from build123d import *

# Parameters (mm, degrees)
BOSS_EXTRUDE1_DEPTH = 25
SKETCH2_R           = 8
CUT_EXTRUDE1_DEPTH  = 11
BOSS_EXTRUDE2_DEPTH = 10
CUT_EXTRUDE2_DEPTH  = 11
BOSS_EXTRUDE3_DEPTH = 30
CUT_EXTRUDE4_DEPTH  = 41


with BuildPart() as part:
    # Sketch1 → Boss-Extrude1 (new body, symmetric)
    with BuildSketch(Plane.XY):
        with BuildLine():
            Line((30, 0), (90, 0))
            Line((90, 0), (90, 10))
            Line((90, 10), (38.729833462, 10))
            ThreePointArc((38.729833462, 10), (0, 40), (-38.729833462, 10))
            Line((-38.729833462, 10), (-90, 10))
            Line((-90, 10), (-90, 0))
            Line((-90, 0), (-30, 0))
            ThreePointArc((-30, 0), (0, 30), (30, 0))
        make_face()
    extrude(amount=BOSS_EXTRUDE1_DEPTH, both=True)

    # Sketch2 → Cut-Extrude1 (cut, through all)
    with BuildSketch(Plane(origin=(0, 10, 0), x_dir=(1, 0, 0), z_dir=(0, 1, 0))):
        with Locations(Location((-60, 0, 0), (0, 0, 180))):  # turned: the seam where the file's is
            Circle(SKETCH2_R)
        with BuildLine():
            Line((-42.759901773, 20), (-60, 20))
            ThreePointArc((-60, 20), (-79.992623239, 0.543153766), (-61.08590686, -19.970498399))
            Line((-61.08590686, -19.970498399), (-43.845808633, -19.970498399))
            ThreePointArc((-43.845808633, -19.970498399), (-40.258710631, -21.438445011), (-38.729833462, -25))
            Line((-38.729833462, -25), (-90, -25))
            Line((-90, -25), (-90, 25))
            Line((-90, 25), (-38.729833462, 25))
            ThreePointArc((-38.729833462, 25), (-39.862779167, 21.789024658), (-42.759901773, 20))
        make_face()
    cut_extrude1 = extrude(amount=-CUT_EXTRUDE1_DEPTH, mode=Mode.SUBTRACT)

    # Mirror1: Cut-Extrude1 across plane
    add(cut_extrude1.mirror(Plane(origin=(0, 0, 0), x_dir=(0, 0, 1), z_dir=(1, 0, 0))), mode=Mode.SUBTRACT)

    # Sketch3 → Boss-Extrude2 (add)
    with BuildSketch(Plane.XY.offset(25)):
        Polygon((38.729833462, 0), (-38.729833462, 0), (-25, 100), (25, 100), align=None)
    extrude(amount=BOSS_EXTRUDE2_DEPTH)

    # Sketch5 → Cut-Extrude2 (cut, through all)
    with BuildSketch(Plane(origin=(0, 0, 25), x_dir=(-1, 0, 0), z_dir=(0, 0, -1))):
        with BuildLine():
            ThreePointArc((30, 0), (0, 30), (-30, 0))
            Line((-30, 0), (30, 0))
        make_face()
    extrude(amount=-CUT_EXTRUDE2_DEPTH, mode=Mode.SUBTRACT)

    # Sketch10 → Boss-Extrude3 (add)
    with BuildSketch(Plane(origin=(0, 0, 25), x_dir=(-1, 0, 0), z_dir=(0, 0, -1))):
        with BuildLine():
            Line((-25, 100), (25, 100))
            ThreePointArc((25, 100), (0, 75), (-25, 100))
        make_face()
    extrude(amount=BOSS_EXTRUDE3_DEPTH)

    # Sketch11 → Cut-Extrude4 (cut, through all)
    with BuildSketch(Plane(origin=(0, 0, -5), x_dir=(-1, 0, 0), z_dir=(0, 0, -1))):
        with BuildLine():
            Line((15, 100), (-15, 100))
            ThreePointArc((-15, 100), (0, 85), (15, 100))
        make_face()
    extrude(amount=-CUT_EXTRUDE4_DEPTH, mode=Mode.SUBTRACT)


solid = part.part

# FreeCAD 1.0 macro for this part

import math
import FreeCAD as App
import Part
import Sketcher


def add_polygon(sketch, points):
    """Adds a closed chain of lines whose ends are joined by coincident constraints."""
    first, n = sketch.GeometryCount, len(points)
    for a, b in zip(points, points[1:] + points[:1]):
        sketch.addGeometry(Part.LineSegment(App.Vector(*a, 0), App.Vector(*b, 0)), False)
    for i in range(n):
        sketch.addConstraint(Sketcher.Constraint("Coincident", first + i, 2, first + (i + 1) % n, 1))

doc = App.newDocument("Part")
body = doc.addObject("PartDesign::Body", "Body")

# Sketch on XY plane
sketch1 = doc.addObject("Sketcher::SketchObject", "Sketch")
body.addObject(sketch1)
sketch1.AttachmentSupport = (doc.XY_Plane, [""])
sketch1.MapMode = "FlatFace"
sketch1.addGeometry([
    Part.LineSegment(App.Vector(30, 0, 0), App.Vector(90, 0, 0)),  # 0
    Part.LineSegment(App.Vector(90, 0, 0), App.Vector(90, 10, 0)),  # 1
    Part.LineSegment(App.Vector(90, 10, 0), App.Vector(39, 10, 0)),  # 2
    Part.ArcOfCircle(Part.Circle(App.Vector(0, 0, 0), App.Vector(0, 0, 1), 40), math.radians(14), math.radians(166)),  # 3
    Part.LineSegment(App.Vector(-39, 10, 0), App.Vector(-90, 10, 0)),  # 4
    Part.LineSegment(App.Vector(-90, 10, 0), App.Vector(-90, 0, 0)),  # 5
    Part.LineSegment(App.Vector(-90, 0, 0), App.Vector(-30, 0, 0)),  # 6
    Part.ArcOfCircle(Part.Circle(App.Vector(0, 0, 0), App.Vector(0, 0, 1), 30), math.radians(0), math.radians(180)),  # 7
], False)
sketch1.addConstraint([
    Sketcher.Constraint("Coincident", 0, 2, 1, 1),
    Sketcher.Constraint("Coincident", 1, 2, 2, 1),
    Sketcher.Constraint("Coincident", 2, 2, 3, 1),
    Sketcher.Constraint("Coincident", 3, 2, 4, 1),
    Sketcher.Constraint("Coincident", 4, 2, 5, 1),
    Sketcher.Constraint("Coincident", 5, 2, 6, 1),
    Sketcher.Constraint("Coincident", 6, 2, 7, 2),
    Sketcher.Constraint("Coincident", 7, 1, 0, 1),
    Sketcher.Constraint("Horizontal", 0),
    Sketcher.Constraint("Vertical", 1),
    Sketcher.Constraint("Horizontal", 2),
    Sketcher.Constraint("Horizontal", 4),
    Sketcher.Constraint("Vertical", 5),
    Sketcher.Constraint("Horizontal", 6),
    Sketcher.Constraint("Coincident", 3, 3, -1, 1),
    Sketcher.Constraint("Coincident", 7, 3, -1, 1),
    Sketcher.Constraint("Symmetric", 0, 2, 5, 2, -1, 1),
    Sketcher.Constraint("PointOnObject", 0, 2, -1),
    Sketcher.Constraint("Horizontal", 2, 2, 3, 2),
    Sketcher.Constraint("Radius", 3, 40.0),
    Sketcher.Constraint("Radius", 7, 30.0),
    Sketcher.Constraint("DistanceX", 0, 1, 0, 2, 60.0),
    Sketcher.Constraint("DistanceY", 1, 1, 1, 2, 10.0),
])
pad1 = doc.addObject("PartDesign::Pad", "Pad")
body.addObject(pad1)
pad1.Profile = sketch1
pad1.Length = 50
pad1.Midplane = True

# Sketch on XZ plane
sketch2 = doc.addObject("Sketcher::SketchObject", "Sketch001")
body.addObject(sketch2)
sketch2.AttachmentSupport = (doc.XZ_Plane, [""])
sketch2.MapMode = "FlatFace"
sketch2.AttachmentOffset = App.Placement(App.Vector(0, 0, -10), App.Rotation())
sketch2.addGeometry([
    Part.Circle(App.Vector(-60, 0, 0), App.Vector(0, 0, 1), 8),  # 0
    Part.LineSegment(App.Vector(-60, -20, 0), App.Vector(-43, -20, 0)),  # 1
    Part.ArcOfCircle(Part.Circle(App.Vector(-44, -25, 0), App.Vector(0, 0, 1), 5), math.radians(0), math.radians(78)),  # 2
    Part.LineSegment(App.Vector(-39, -25, 0), App.Vector(-90, -25, 0)),  # 3
    Part.LineSegment(App.Vector(-90, -25, 0), App.Vector(-90, 25, 0)),  # 4
    Part.LineSegment(App.Vector(-90, 25, 0), App.Vector(-39, 25, 0)),  # 5
    Part.ArcOfCircle(Part.Circle(App.Vector(-44, 25, 0), App.Vector(0, 0, 1), 5), math.radians(-90), math.radians(-1)),  # 6
    Part.LineSegment(App.Vector(-44, 20, 0), App.Vector(-61, 20, 0)),  # 7
    Part.ArcOfCircle(Part.Circle(App.Vector(-60, 0, 0), App.Vector(0, 0, 1), 20), math.radians(93), math.radians(270)),  # 8
], False)
sketch2.addConstraint([
    Sketcher.Constraint("Coincident", 1, 2, 2, 2),
    Sketcher.Constraint("Coincident", 2, 1, 3, 1),
    Sketcher.Constraint("Coincident", 3, 2, 4, 1),
    Sketcher.Constraint("Coincident", 4, 2, 5, 1),
    Sketcher.Constraint("Coincident", 5, 2, 6, 2),
    Sketcher.Constraint("Tangent", 6, 1, 7, 1),
    Sketcher.Constraint("Coincident", 7, 2, 8, 1),
    Sketcher.Constraint("Tangent", 8, 2, 1, 1),
    Sketcher.Constraint("Horizontal", 1),
    Sketcher.Constraint("Horizontal", 3),
    Sketcher.Constraint("Vertical", 4),
    Sketcher.Constraint("Horizontal", 5),
    Sketcher.Constraint("Horizontal", 7),
    Sketcher.Constraint("Coincident", 8, 3, 0, 3),
    Sketcher.Constraint("Equal", 2, 6),
    Sketcher.Constraint("Symmetric", 2, 1, 5, 2, -1),
    Sketcher.Constraint("PointOnObject", 0, 3, -1),
    Sketcher.Constraint("Equal", 1, 7),
    Sketcher.Constraint("Diameter", 0, 16.0),
    Sketcher.Constraint("Radius", 8, 20.0),
    Sketcher.Constraint("DistanceY", 4, 1, 4, 2, 50.0),
    Sketcher.Constraint("DistanceX", 0, 3, -1, 1, 60.0),
    Sketcher.Constraint("DistanceY", 2, 3, -1, 1, 25.0),
    Sketcher.Constraint("DistanceX", 3, 2, -1, 1, 90.0),
    Sketcher.Constraint("Radius", 2, 5.116719),
    Sketcher.Constraint("DistanceX", 1, 1, 1, 2, 17.240098),
])
pocket1 = doc.addObject("PartDesign::Pocket", "Pocket")
body.addObject(pocket1)
pocket1.Profile = sketch2
pocket1.Type = "ThroughAll"
pocket1.Reversed = True
doc.recompute()

mirrored = doc.addObject("PartDesign::Mirrored", "Mirrored")
body.addObject(mirrored)
mirrored.Originals = [pocket1]
mirrored.MirrorPlane = (doc.YZ_Plane, [""])
body.Tip = mirrored

# Sketch on XY plane
sketch3 = doc.addObject("Sketcher::SketchObject", "Sketch002")
body.addObject(sketch3)
sketch3.AttachmentSupport = (doc.XY_Plane, [""])
sketch3.MapMode = "FlatFace"
sketch3.AttachmentOffset = App.Placement(App.Vector(0, 0, 25), App.Rotation())
add_polygon(sketch3, [(-39, 0), (39, 0), (25, 100), (-25, 100)])  # lines 0-3
sketch3.addConstraint([
    Sketcher.Constraint("Horizontal", 0),
    Sketcher.Constraint("Horizontal", 2),
    Sketcher.Constraint("Symmetric", 0, 2, 3, 2, -1, 1),
    Sketcher.Constraint("Equal", 1, 3),
    Sketcher.Constraint("DistanceX", 2, 2, 2, 1, 50.0),
    Sketcher.Constraint("DistanceY", -1, 1, 1, 2, 100.0),
    Sketcher.Constraint("Distance", 1, 100.938141),
])
pad2 = doc.addObject("PartDesign::Pad", "Pad001")
body.addObject(pad2)
pad2.Profile = sketch3
pad2.Length = 10

# Sketch on XY plane
sketch4 = doc.addObject("Sketcher::SketchObject", "Sketch003")
body.addObject(sketch4)
sketch4.AttachmentSupport = (doc.XY_Plane, [""])
sketch4.MapMode = "FlatFace"
sketch4.AttachmentOffset = App.Placement(App.Vector(0, 0, 25), App.Rotation())
sketch4.addGeometry([
    Part.ArcOfCircle(Part.Circle(App.Vector(0, 0, 0), App.Vector(0, 0, 1), 30), math.radians(0), math.radians(180)),
    Part.LineSegment(App.Vector(30, 0, 0), App.Vector(-30, 0, 0)),
], False)
sketch4.addConstraint([
    Sketcher.Constraint("Coincident", 0, 1, 1, 1),
    Sketcher.Constraint("Coincident", 1, 2, 0, 2),
    Sketcher.Constraint("Horizontal", 1),
    Sketcher.Constraint("Coincident", 0, 3, -1, 1),
    Sketcher.Constraint("PointOnObject", 0, 1, -1),
    Sketcher.Constraint("Radius", 0, 30.0),
])
pocket2 = doc.addObject("PartDesign::Pocket", "Pocket001")
body.addObject(pocket2)
pocket2.Profile = sketch4
pocket2.Type = "ThroughAll"
pocket2.Reversed = True

# Sketch on XY plane
sketch5 = doc.addObject("Sketcher::SketchObject", "Sketch004")
body.addObject(sketch5)
sketch5.AttachmentSupport = (doc.XY_Plane, [""])
sketch5.MapMode = "FlatFace"
sketch5.AttachmentOffset = App.Placement(App.Vector(0, 0, 25), App.Rotation())
sketch5.addGeometry([
    Part.LineSegment(App.Vector(-25, 100, 0), App.Vector(25, 100, 0)),
    Part.ArcOfCircle(Part.Circle(App.Vector(0, 100, 0), App.Vector(0, 0, 1), 25), math.radians(180), math.radians(360)),
], False)
sketch5.addConstraint([
    Sketcher.Constraint("Coincident", 0, 1, 1, 1),
    Sketcher.Constraint("Coincident", 1, 2, 0, 2),
    Sketcher.Constraint("Horizontal", 0),
    Sketcher.Constraint("PointOnObject", 1, 3, -2),
    Sketcher.Constraint("Horizontal", 1, 3, 0, 1),
    Sketcher.Constraint("Radius", 1, 25.0),
    Sketcher.Constraint("DistanceY", -1, 1, 1, 3, 100.0),
])
pad3 = doc.addObject("PartDesign::Pad", "Pad002")
body.addObject(pad3)
pad3.Profile = sketch5
pad3.Length = 30
pad3.Reversed = True

# Sketch on XY plane
sketch6 = doc.addObject("Sketcher::SketchObject", "Sketch005")
body.addObject(sketch6)
sketch6.AttachmentSupport = (doc.XY_Plane, [""])
sketch6.MapMode = "FlatFace"
sketch6.AttachmentOffset = App.Placement(App.Vector(0, 0, -5), App.Rotation())
sketch6.addGeometry([
    Part.LineSegment(App.Vector(-15, 100, 0), App.Vector(15, 100, 0)),
    Part.ArcOfCircle(Part.Circle(App.Vector(0, 100, 0), App.Vector(0, 0, 1), 15), math.radians(180), math.radians(360)),
], False)
sketch6.addConstraint([
    Sketcher.Constraint("Coincident", 0, 1, 1, 1),
    Sketcher.Constraint("Coincident", 1, 2, 0, 2),
    Sketcher.Constraint("Horizontal", 0),
    Sketcher.Constraint("PointOnObject", 1, 3, -2),
    Sketcher.Constraint("Horizontal", 1, 3, 0, 1),
    Sketcher.Constraint("Radius", 1, 15.0),
    Sketcher.Constraint("DistanceY", -1, 1, 1, 3, 100.0),
])
pocket3 = doc.addObject("PartDesign::Pocket", "Pocket002")
body.addObject(pocket3)
pocket3.Profile = sketch6
pocket3.Type = "ThroughAll"
pocket3.Reversed = True

doc.recompute()
